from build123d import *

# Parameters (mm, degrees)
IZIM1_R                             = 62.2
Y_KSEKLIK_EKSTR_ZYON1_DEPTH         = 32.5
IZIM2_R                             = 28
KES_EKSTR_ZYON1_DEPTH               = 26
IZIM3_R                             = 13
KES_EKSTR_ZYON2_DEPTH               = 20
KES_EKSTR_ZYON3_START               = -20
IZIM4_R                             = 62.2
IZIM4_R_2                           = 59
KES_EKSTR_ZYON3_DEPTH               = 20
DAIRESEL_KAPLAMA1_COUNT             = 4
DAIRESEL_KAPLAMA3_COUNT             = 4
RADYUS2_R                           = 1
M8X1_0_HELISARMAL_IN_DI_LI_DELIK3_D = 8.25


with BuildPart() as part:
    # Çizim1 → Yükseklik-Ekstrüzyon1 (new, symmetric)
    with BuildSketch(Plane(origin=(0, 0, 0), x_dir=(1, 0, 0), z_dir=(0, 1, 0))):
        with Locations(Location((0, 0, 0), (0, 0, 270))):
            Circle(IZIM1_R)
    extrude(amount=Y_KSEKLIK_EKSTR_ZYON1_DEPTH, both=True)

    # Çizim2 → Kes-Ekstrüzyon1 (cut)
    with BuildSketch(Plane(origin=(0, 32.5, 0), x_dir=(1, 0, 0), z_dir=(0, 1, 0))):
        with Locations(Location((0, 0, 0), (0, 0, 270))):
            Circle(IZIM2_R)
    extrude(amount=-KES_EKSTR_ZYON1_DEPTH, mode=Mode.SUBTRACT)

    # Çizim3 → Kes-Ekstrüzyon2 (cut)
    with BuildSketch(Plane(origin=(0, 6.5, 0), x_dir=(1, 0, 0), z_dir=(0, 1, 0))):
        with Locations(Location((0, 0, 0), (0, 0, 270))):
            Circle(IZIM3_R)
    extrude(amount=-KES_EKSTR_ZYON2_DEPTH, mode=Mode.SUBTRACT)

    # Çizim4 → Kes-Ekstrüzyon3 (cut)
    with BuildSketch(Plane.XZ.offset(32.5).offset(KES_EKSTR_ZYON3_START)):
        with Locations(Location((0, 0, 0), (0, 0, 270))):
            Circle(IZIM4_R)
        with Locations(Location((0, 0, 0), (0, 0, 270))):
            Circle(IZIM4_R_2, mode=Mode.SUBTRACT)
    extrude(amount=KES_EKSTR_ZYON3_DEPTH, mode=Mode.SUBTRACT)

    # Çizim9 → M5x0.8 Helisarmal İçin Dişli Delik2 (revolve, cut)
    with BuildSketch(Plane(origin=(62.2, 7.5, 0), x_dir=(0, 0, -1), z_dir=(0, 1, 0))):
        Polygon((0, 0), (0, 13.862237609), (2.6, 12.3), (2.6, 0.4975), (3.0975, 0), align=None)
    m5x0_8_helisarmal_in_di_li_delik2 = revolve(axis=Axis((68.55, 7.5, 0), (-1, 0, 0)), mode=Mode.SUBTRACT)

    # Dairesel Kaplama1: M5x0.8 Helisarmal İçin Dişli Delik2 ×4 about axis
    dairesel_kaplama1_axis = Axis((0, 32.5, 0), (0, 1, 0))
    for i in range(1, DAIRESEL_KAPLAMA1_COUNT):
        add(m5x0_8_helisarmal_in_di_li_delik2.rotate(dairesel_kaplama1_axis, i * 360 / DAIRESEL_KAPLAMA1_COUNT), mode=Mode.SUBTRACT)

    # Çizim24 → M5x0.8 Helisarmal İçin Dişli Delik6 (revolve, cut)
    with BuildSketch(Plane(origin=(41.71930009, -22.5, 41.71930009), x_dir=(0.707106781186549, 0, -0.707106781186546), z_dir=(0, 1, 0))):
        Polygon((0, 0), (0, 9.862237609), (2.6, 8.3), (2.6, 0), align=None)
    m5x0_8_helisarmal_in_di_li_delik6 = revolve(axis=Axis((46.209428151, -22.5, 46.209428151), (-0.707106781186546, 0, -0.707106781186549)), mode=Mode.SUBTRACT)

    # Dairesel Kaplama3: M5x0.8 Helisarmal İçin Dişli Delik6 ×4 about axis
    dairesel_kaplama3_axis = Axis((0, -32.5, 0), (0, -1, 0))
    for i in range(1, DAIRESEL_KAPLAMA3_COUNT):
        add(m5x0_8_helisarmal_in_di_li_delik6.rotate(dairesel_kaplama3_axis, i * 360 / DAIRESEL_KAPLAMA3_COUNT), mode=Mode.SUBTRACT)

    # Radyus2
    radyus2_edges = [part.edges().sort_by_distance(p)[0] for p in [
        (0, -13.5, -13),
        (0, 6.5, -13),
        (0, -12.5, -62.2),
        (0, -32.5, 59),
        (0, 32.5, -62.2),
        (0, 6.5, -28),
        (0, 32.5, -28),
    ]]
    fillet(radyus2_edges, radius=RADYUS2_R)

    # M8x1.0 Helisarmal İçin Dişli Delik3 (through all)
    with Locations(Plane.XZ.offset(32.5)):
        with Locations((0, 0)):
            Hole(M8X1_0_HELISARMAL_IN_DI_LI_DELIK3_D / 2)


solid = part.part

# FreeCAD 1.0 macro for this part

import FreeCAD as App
import Part
import Sketcher
Q = App.Units.Quantity


def edges_at(feature, points):
    """Names of the edges that pass closest to the given points."""
    edges = feature.Shape.Edges
    near = lambda p: min(range(len(edges)), key=lambda i: edges[i].distToShape(Part.Vertex(*p))[0])
    return sorted({f"Edge{near(p) + 1}" for p in points})


def add_polygon(sketch, points):
    """Adds a closed chain of lines whose ends are joined by coincident constraints."""
    first, n = sketch.GeometryCount, len(points)
    for a, b in zip(points, points[1:] + points[:1]):
        sketch.addGeometry(Part.LineSegment(App.Vector(*a, 0), App.Vector(*b, 0)), False)
    for i in range(n):
        sketch.addConstraint(Sketcher.Constraint("Coincident", first + i, 2, first + (i + 1) % n, 1))

doc = App.newDocument("Part")
params = doc.addObject("Spreadsheet::Sheet", "Params")
for row, (alias, value) in enumerate([
    ("sketch1_diameter", "124.4 mm"),
    ("pad1_length", "65 mm"),
    ("sketch2_diameter", "56 mm"),
    ("pocket1_length", "26 mm"),
    ("sketch3_diameter", "26 mm"),
    ("pocket2_length", "20 mm"),
    ("sketch4_diameter", "118 mm"),
    ("sketch4_diameter2", "124.4 mm"),
    ("pocket3_length", "20 mm"),
    ("groove_angle", "360 deg"),
    ("sketch6_length", "2.6 mm"),
    ("sketch6_length2", "8.3 mm"),
    ("groove2_angle", "360 deg"),
    ("fillet_radius", "1 mm"),
    ("sketch7_diameter", "8.25 mm"),
    ("hole_diameter", "8.25 mm"),
], start=1):
    params.set(f"A{row}", alias)
    params.set(f"B{row}", "=" + value)
    params.setAlias(f"B{row}", alias)

body = doc.addObject("PartDesign::Body", "Body")

sketch1 = doc.addObject("Sketcher::SketchObject", "Sketch")
body.addObject(sketch1)
sketch1.AttachmentSupport = (doc.XZ_Plane, [""])
sketch1.MapMode = "FlatFace"
sketch1.addGeometry(Part.Circle(App.Vector(0, 0, 0), App.Vector(0, 0, 1), 62.2), False)
sketch1.addConstraint([
    Sketcher.Constraint("Coincident", 0, 3, -1, 1),
    Sketcher.Constraint("Diameter", 0, 124.4),
])
sketch1.setExpression("Constraints[1]", "Params.sketch1_diameter")
pad1 = doc.addObject("PartDesign::Pad", "Pad")
body.addObject(pad1)
pad1.Profile = sketch1
pad1.setExpression("Length", "Params.pad1_length")
pad1.Midplane = True

sketch2 = doc.addObject("Sketcher::SketchObject", "Sketch001")
body.addObject(sketch2)
sketch2.AttachmentSupport = (doc.XZ_Plane, [""])
sketch2.MapMode = "FlatFace"
sketch2.AttachmentOffset = App.Placement(App.Vector(0, 0, -32.5), App.Rotation())
sketch2.addGeometry(Part.Circle(App.Vector(0, 0, 0), App.Vector(0, 0, 1), 28), False)
sketch2.addConstraint([
    Sketcher.Constraint("Coincident", 0, 3, -1, 1),
    Sketcher.Constraint("Diameter", 0, 56.0),
])
sketch2.setExpression("Constraints[1]", "Params.sketch2_diameter")
pocket1 = doc.addObject("PartDesign::Pocket", "Pocket")
body.addObject(pocket1)
pocket1.Profile = sketch2
pocket1.setExpression("Length", "Params.pocket1_length")
pocket1.Reversed = True

sketch3 = doc.addObject("Sketcher::SketchObject", "Sketch002")
body.addObject(sketch3)
sketch3.AttachmentSupport = (doc.XZ_Plane, [""])
sketch3.MapMode = "FlatFace"
sketch3.AttachmentOffset = App.Placement(App.Vector(0, 0, -6.5), App.Rotation())
sketch3.addGeometry(Part.Circle(App.Vector(0, 0, 0), App.Vector(0, 0, 1), 13), False)
sketch3.addConstraint([
    Sketcher.Constraint("Coincident", 0, 3, -1, 1),
    Sketcher.Constraint("Diameter", 0, 26.0),
])
sketch3.setExpression("Constraints[1]", "Params.sketch3_diameter")
pocket2 = doc.addObject("PartDesign::Pocket", "Pocket001")
body.addObject(pocket2)
pocket2.Profile = sketch3
pocket2.setExpression("Length", "Params.pocket2_length")
pocket2.Reversed = True

sketch4 = doc.addObject("Sketcher::SketchObject", "Sketch003")
body.addObject(sketch4)
sketch4.AttachmentSupport = (doc.XZ_Plane, [""])
sketch4.MapMode = "FlatFace"
sketch4.AttachmentOffset = App.Placement(App.Vector(0, 0, 12.5), App.Rotation())
sketch4.addGeometry([
    Part.Circle(App.Vector(0, 0, 0), App.Vector(0, 0, 1), 62.2),
    Part.Circle(App.Vector(0, 0, 0), App.Vector(0, 0, 1), 59),
], False)
sketch4.addConstraint([
    Sketcher.Constraint("Coincident", 0, 3, -1, 1),
    Sketcher.Constraint("Coincident", 1, 3, -1, 1),
    Sketcher.Constraint("Diameter", 1, 118.0),
    Sketcher.Constraint("Diameter", 0, 124.4),
])
sketch4.setExpression("Constraints[2]", "Params.sketch4_diameter")
sketch4.setExpression("Constraints[3]", "Params.sketch4_diameter2")
pocket3 = doc.addObject("PartDesign::Pocket", "Pocket002")
body.addObject(pocket3)
pocket3.Profile = sketch4
pocket3.setExpression("Length", "Params.pocket3_length")
pocket3.Reversed = True

sketch5 = doc.addObject("Sketcher::SketchObject", "Sketch004")
body.addObject(sketch5)
sketch5.AttachmentSupport = (doc.XZ_Plane, [""])
sketch5.MapMode = "FlatFace"
sketch5.AttachmentOffset = App.Placement(App.Vector(0, 0, -7.5), App.Rotation())
add_polygon(sketch5, [(48.337762, 0), (62.2, 0), (62.2, -3.0975), (61.7025, -2.6), (49.9, -2.6)])
sketch5.addConstraint([
    Sketcher.Constraint("Horizontal", 0),
    Sketcher.Constraint("Vertical", 1),
    Sketcher.Constraint("Horizontal", 3),
    Sketcher.Constraint("PointOnObject", 0, 2, -1),
    Sketcher.Constraint("Angle", 2, Q("135 deg")),
    Sketcher.Constraint("Angle", 4, Q("121 deg")),
    Sketcher.Constraint("DistanceX", -1, 1, 0, 2, 62.2),
    Sketcher.Constraint("DistanceY", 2, 2, -1, 1, 2.6),
    Sketcher.Constraint("DistanceX", -1, 1, 3, 2, 49.9),
    Sketcher.Constraint("DistanceX", 3, 2, 3, 1, 11.8025),
])
groove = doc.addObject("PartDesign::Groove", "Groove")
body.addObject(groove)
groove.Profile = sketch5
groove.ReferenceAxis = (sketch5, ["H_Axis"])
groove.setExpression("Angle", "Params.groove_angle")
doc.recompute()

polarpattern = doc.addObject("PartDesign::PolarPattern", "PolarPattern")
body.addObject(polarpattern)
polarpattern.Originals = [groove]
polarpattern.Axis = (doc.Y_Axis, [""])
polarpattern.Angle = 360
polarpattern.Occurrences = 4
body.Tip = polarpattern

sketch6 = doc.addObject("Sketcher::SketchObject", "Sketch005")
body.addObject(sketch6)
sketch6.AttachmentSupport = (doc.XZ_Plane, [""])
sketch6.MapMode = "FlatFace"
sketch6.AttachmentOffset = App.Placement(App.Vector(0, 0, 22.5), App.Rotation())
add_polygon(sketch6, [(34.745645, 34.745645), (41.7193, 41.7193), (43.557778, 39.880822), (37.688791, 34.011836)])
sketch6.addGeometry(Part.LineSegment(App.Vector(41.7193, 41.7193, 0), App.Vector(34.745645, 34.745645, 0)), True)
sketch6.addConstraint([
    Sketcher.Constraint("Coincident", 4, 1, 0, 2),
    Sketcher.Constraint("Coincident", 4, 2, 3, 2),
    Sketcher.Constraint("Perpendicular", 0, 1),
    Sketcher.Constraint("Perpendicular", 1, 2),
    Sketcher.Constraint("Angle", 0, Q("45 deg")),
    Sketcher.Constraint("Angle", 3, Q("166 deg")),
    Sketcher.Constraint("Distance", 1, 2.6),
    Sketcher.Constraint("Distance", 2, 8.3),
    Sketcher.Constraint("DistanceX", -1, 1, 0, 2, 41.7193),
    Sketcher.Constraint("DistanceY", -1, 1, 0, 2, 41.7193),
])
sketch6.setExpression("Constraints[10]", "Params.sketch6_length")
sketch6.setExpression("Constraints[11]", "Params.sketch6_length2")
groove2 = doc.addObject("PartDesign::Groove", "Groove001")
body.addObject(groove2)
groove2.Profile = sketch6
groove2.ReferenceAxis = (sketch6, ["Axis0"])
groove2.setExpression("Angle", "Params.groove2_angle")
doc.recompute()

polarpattern2 = doc.addObject("PartDesign::PolarPattern", "PolarPattern001")
body.addObject(polarpattern2)
polarpattern2.Originals = [groove2]
polarpattern2.Axis = (doc.Y_Axis, [""])
polarpattern2.Angle = 360
polarpattern2.Occurrences = 4
body.Tip = polarpattern2
doc.recompute()

fillet = doc.addObject("PartDesign::Fillet", "Fillet")
body.addObject(fillet)
fillet.Base = (polarpattern2, edges_at(polarpattern2, [
    (0, -13.5, -13),
    (0, 6.5, -13),
    (0, -12.5, -62.2),
    (0, -32.5, 59),
    (0, 32.5, -62.2),
    (0, 6.5, -28),
    (0, 32.5, -28),
]))
fillet.setExpression("Radius", "Params.fillet_radius")

sketch7 = doc.addObject("Sketcher::SketchObject", "Sketch006")
body.addObject(sketch7)
sketch7.AttachmentSupport = (doc.XZ_Plane, [""])
sketch7.MapMode = "FlatFace"
sketch7.AttachmentOffset = App.Placement(App.Vector(0, 0, 32.5), App.Rotation())
sketch7.addGeometry(Part.Circle(App.Vector(0, 0, 0), App.Vector(0, 0, 1), 4.125), False)
sketch7.addConstraint([
    Sketcher.Constraint("Coincident", 0, 3, -1, 1),
    Sketcher.Constraint("Diameter", 0, 8.25),
])
sketch7.setExpression("Constraints[1]", "Params.sketch7_diameter")
doc.recompute()
hole = doc.addObject("PartDesign::Hole", "Hole")
body.addObject(hole)
hole.Profile = sketch7
hole.ThreadType = "None"
hole.setExpression("Diameter", "Params.hole_diameter")
hole.DepthType = "ThroughAll"

doc.recompute()
